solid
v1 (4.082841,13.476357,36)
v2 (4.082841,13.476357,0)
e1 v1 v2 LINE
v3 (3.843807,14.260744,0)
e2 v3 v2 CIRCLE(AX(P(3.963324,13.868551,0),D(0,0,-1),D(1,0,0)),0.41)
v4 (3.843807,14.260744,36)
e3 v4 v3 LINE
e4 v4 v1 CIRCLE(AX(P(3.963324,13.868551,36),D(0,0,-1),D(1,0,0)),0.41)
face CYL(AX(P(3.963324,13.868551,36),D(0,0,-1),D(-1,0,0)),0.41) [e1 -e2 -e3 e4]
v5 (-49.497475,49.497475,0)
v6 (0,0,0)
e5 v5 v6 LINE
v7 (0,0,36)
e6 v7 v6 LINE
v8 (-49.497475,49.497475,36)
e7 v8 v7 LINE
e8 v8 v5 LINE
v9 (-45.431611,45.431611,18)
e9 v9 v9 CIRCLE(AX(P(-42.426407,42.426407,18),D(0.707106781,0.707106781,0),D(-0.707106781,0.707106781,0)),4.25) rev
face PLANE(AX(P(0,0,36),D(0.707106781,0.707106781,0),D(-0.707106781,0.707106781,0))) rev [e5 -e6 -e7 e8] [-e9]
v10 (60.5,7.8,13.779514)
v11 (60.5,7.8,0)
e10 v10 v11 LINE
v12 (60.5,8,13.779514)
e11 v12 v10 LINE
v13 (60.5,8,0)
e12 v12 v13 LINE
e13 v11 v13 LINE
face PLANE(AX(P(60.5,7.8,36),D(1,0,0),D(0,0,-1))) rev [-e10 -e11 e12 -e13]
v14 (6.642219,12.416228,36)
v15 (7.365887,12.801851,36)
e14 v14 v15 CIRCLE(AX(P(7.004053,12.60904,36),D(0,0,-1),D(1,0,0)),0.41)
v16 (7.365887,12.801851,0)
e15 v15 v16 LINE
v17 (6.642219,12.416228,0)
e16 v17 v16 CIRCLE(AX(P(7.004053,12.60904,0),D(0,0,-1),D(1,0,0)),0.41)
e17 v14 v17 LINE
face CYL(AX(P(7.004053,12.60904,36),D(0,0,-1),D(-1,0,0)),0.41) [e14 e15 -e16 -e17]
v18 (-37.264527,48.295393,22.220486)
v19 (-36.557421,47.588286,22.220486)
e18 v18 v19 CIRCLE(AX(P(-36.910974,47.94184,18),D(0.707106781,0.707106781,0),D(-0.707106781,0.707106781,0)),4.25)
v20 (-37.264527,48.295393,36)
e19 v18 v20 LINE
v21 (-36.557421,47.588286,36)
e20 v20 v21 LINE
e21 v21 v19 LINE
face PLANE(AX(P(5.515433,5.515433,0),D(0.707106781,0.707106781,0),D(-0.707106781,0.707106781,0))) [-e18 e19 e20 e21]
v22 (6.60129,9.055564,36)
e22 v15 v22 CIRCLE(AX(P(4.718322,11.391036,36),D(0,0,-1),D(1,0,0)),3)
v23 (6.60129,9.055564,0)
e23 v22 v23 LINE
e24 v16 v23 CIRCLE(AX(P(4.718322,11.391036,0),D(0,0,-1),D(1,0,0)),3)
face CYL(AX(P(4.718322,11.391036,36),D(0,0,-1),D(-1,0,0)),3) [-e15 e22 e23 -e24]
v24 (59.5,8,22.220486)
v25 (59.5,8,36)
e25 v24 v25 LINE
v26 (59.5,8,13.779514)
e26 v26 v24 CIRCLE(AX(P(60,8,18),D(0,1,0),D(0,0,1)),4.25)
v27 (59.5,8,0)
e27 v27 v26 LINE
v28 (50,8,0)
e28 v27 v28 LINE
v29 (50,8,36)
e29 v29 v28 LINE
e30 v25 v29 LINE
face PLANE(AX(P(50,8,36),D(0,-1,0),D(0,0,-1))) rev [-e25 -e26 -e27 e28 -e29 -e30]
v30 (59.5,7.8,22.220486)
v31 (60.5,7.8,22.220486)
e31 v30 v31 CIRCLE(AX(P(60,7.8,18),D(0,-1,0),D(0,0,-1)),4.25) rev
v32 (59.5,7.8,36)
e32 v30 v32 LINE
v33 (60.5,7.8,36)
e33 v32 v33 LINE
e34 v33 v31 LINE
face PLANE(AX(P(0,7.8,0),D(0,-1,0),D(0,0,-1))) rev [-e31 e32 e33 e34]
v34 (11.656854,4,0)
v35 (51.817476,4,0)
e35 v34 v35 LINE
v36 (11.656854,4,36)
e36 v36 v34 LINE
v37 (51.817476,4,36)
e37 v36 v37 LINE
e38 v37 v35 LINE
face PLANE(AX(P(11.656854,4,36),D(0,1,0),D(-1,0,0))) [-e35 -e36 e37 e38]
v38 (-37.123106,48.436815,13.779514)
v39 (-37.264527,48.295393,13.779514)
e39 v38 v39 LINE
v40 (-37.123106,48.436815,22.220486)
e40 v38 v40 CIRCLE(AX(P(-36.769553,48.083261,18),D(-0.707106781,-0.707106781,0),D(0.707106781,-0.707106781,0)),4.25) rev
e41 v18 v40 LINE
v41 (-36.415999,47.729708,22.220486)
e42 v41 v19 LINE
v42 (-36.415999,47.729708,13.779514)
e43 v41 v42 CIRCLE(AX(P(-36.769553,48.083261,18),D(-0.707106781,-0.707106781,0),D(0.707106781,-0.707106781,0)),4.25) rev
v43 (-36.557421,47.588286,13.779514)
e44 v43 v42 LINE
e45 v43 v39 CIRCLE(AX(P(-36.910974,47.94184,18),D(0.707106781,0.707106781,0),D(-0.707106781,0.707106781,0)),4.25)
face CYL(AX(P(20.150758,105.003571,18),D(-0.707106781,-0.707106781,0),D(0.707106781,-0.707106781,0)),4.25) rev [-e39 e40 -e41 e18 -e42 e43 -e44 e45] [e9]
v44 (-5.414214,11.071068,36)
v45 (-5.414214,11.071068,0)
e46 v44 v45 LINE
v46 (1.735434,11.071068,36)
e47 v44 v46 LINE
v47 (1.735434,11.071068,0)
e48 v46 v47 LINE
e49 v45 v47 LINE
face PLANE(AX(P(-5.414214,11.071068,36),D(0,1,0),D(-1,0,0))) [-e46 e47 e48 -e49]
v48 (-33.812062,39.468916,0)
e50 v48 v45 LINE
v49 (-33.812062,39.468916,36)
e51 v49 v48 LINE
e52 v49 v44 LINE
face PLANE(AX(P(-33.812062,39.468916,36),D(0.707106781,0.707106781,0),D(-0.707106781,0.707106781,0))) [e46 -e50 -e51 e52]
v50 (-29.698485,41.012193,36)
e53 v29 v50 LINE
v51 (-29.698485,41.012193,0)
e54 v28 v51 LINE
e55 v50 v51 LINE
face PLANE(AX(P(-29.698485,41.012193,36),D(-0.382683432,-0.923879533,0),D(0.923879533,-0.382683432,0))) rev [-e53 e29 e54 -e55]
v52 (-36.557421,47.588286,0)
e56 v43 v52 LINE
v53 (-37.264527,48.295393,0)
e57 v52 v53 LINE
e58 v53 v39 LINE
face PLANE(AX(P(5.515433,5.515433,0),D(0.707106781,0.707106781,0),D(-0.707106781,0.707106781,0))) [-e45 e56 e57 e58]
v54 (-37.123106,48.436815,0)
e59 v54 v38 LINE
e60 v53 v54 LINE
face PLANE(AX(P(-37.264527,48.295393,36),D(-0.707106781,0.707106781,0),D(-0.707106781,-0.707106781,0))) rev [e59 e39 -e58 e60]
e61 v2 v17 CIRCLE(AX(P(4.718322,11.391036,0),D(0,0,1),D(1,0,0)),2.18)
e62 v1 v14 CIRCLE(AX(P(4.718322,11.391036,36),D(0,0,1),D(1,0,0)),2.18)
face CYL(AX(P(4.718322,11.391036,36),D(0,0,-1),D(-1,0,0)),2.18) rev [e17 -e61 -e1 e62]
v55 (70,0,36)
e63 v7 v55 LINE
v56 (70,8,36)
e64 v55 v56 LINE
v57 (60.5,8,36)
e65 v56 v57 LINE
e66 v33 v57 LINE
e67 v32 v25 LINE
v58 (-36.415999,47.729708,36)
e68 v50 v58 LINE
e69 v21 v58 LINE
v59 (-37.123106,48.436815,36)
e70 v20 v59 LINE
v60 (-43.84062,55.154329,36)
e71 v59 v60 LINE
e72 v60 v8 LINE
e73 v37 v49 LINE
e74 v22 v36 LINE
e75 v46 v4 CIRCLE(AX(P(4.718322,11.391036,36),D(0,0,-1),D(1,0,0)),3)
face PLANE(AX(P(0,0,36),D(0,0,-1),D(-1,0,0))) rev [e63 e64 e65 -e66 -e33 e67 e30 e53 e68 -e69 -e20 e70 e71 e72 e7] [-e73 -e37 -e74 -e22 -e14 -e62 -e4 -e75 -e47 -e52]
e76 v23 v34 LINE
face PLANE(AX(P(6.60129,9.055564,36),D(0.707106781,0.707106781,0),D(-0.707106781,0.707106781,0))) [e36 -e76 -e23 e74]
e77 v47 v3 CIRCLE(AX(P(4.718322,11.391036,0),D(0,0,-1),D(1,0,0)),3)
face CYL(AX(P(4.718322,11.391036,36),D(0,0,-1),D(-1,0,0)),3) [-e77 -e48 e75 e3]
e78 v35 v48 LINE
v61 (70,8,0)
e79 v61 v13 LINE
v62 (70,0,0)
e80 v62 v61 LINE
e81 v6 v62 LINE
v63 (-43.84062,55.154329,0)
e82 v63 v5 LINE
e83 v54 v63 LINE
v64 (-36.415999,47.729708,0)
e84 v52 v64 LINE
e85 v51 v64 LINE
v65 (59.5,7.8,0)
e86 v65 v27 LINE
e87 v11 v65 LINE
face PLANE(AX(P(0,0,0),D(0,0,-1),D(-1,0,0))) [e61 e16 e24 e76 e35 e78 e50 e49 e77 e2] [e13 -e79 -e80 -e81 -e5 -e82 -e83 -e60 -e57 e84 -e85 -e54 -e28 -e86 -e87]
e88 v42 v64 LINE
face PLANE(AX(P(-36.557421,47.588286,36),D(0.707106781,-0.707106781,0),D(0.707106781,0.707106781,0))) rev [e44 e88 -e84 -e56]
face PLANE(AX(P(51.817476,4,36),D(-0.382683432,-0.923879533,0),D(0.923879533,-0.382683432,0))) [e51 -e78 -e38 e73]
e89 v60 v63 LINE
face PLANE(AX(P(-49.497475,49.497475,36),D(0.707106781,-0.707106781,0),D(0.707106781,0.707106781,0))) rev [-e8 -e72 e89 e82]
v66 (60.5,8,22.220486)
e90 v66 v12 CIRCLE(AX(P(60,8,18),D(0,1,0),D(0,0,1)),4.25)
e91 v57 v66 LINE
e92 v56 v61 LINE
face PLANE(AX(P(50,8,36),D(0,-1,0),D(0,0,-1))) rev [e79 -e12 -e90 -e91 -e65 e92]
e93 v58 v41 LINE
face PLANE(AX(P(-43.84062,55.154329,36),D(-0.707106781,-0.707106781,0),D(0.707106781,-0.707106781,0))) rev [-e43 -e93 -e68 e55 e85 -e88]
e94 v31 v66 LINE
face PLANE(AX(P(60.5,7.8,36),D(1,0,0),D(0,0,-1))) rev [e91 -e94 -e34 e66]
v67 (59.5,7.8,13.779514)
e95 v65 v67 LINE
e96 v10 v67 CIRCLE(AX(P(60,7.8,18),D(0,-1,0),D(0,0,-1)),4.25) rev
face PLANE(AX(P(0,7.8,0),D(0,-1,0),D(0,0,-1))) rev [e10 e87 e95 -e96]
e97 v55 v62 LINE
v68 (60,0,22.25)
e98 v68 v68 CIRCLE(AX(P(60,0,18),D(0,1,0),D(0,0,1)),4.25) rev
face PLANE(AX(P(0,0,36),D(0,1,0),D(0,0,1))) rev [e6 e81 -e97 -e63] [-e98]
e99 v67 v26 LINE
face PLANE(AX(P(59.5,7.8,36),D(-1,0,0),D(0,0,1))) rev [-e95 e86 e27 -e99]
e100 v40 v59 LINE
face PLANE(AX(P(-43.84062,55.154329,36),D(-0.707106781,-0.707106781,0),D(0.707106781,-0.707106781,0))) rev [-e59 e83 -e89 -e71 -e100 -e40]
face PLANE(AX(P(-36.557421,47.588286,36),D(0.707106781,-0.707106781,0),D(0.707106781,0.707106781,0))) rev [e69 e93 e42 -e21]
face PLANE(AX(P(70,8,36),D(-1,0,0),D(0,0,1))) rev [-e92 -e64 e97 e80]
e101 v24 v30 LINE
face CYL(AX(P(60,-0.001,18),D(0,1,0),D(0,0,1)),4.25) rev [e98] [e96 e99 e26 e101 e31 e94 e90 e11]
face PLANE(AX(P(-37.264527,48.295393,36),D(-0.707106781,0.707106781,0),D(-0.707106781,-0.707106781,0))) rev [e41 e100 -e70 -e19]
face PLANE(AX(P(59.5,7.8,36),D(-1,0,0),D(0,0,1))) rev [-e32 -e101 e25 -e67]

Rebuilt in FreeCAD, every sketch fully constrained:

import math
import FreeCAD as App
import Part
import Sketcher

V = App.Vector
Q = App.Units.Quantity

doc = App.newDocument("Part")
body = doc.addObject("PartDesign::Body", "Body")

# Sketch on XY plane
sketch1 = body.newObject("Sketcher::SketchObject", "Sketch")
sketch1.AttachmentSupport = (doc.getObject("XY_Plane"), [""])
sketch1.MapMode = "FlatFace"
sketch1.addGeometry([
    Part.LineSegment(V(0, 0, 0), V(70, 0, 0)),  # 0
    Part.LineSegment(V(70, 0, 0), V(70, 8, 0)),  # 1
    Part.LineSegment(V(70, 8, 0), V(50, 8, 0)),  # 2
    Part.LineSegment(V(50, 8, 0), V(-29.7, 41.01, 0)),  # 3
    Part.LineSegment(V(-29.7, 41.01, 0), V(-43.84, 55.15, 0)),  # 4
    Part.LineSegment(V(-43.84, 55.15, 0), V(-49.5, 49.5, 0)),  # 5
    Part.LineSegment(V(-49.5, 49.5, 0), V(0, 0, 0)),  # 6
    Part.LineSegment(V(-5.41, 11.07, 0), V(-33.81, 39.47, 0)),  # 7
    Part.LineSegment(V(-33.81, 39.47, 0), V(51.82, 4, 0)),  # 8
    Part.LineSegment(V(51.82, 4, 0), V(11.66, 4, 0)),  # 9
    Part.LineSegment(V(11.66, 4, 0), V(6.6, 9.06, 0)),  # 10
    Part.ArcOfCircle(Part.Circle(V(4.72, 11.39, 0), V(0, 0, 1), 3), math.radians(-51), math.radians(28)),  # 11
    Part.ArcOfCircle(Part.Circle(V(7, 12.61, 0), V(0, 0, 1), 0.41), math.radians(28), math.radians(208)),  # 12
    Part.ArcOfCircle(Part.Circle(V(4.72, 11.39, 0), V(0, 0, 1), 2.18), math.radians(107), math.radians(388)),  # 13
    Part.ArcOfCircle(Part.Circle(V(3.96, 13.87, 0), V(0, 0, 1), 0.41), math.radians(-73), math.radians(107)),  # 14
    Part.ArcOfCircle(Part.Circle(V(4.72, 11.39, 0), V(0, 0, 1), 3), math.radians(107), math.radians(186)),  # 15
    Part.LineSegment(V(1.74, 11.07, 0), V(-5.41, 11.07, 0)),  # 16
], False)
sketch1.addConstraint([
    Sketcher.Constraint("Coincident", 0, 2, 1, 1),
    Sketcher.Constraint("Coincident", 1, 2, 2, 1),
    Sketcher.Constraint("Coincident", 2, 2, 3, 1),
    Sketcher.Constraint("Coincident", 3, 2, 4, 1),
    Sketcher.Constraint("Coincident", 4, 2, 5, 1),
    Sketcher.Constraint("Coincident", 5, 2, 6, 1),
    Sketcher.Constraint("Coincident", 6, 2, 0, 1),
    Sketcher.Constraint("Coincident", 7, 2, 8, 1),
    Sketcher.Constraint("Coincident", 8, 2, 9, 1),
    Sketcher.Constraint("Coincident", 9, 2, 10, 1),
    Sketcher.Constraint("Coincident", 10, 2, 11, 1),
    Sketcher.Constraint("Tangent", 11, 2, 12, 1),
    Sketcher.Constraint("Tangent", 12, 2, 13, 2),
    Sketcher.Constraint("Tangent", 13, 1, 14, 1),
    Sketcher.Constraint("Tangent", 14, 2, 15, 1),
    Sketcher.Constraint("Coincident", 15, 2, 16, 1),
    Sketcher.Constraint("Coincident", 16, 2, 7, 1),
    Sketcher.Constraint("Horizontal", 0),
    Sketcher.Constraint("Vertical", 1),
    Sketcher.Constraint("Horizontal", 2),
    Sketcher.Constraint("Horizontal", 9),
    Sketcher.Constraint("Horizontal", 16),
    Sketcher.Constraint("Coincident", 6, 2, -1, 1),
    Sketcher.Constraint("Coincident", 13, 3, 11, 3),
    Sketcher.Constraint("Coincident", 15, 3, 11, 3),
    Sketcher.Constraint("Equal", 12, 14),
    Sketcher.Constraint("Perpendicular", 4, 5),
    Sketcher.Constraint("Perpendicular", 5, 6),
    Sketcher.Constraint("Parallel", 6, 7),
    Sketcher.Constraint("Parallel", 3, 8),
    Sketcher.Constraint("Parallel", 7, 10),
    Sketcher.Constraint("Radius", 11, Q("3 mm")),
    Sketcher.Constraint("DistanceX", 0, 1, 0, 2, Q("70 mm")),
    Sketcher.Constraint("DistanceX", 2, 2, 2, 1, Q("20 mm")),
    Sketcher.Constraint("DistanceY", 1, 1, 1, 2, Q("8 mm")),
    Sketcher.Constraint("Angle", 4, Q("135 deg")),
    Sketcher.Constraint("Radius", 12, Q("0.41 mm")),
    Sketcher.Constraint("Distance", 4, Q("20 mm")),
    Sketcher.Constraint("Distance", 5, Q("8 mm")),
    Sketcher.Constraint("Distance", 6, Q("70 mm")),
    Sketcher.Constraint("DistanceY", -1, 1, 8, 2, Q("4 mm")),
    Sketcher.Constraint("DistanceX", 5, 2, 14, 3, Q("53.460799 mm")),
    Sketcher.Constraint("DistanceX", 12, 3, 9, 2, Q("4.652801 mm")),
    Sketcher.Constraint("DistanceY", 11, 2, 14, 3, Q("1.0667 mm")),
    Sketcher.Constraint("DistanceX", 9, 2, 9, 1, Q("40.160622 mm")),
    Sketcher.Constraint("DistanceX", 16, 2, 16, 1, Q("7.149647 mm")),
    Sketcher.Constraint("DistanceX", -1, 1, 11, 3, Q("4.718322 mm")),
    Sketcher.Constraint("DistanceY", -1, 1, 12, 3, Q("12.60904 mm")),
    Sketcher.Constraint("DistanceX", 7, 2, -1, 1, Q("33.812062 mm")),
])
pad1 = body.newObject("PartDesign::Pad", "Pad")
pad1.Profile = sketch1
pad1.Length = 36

# Sketch on XZ plane
sketch2 = body.newObject("Sketcher::SketchObject", "Sketch001")
sketch2.AttachmentSupport = (doc.getObject("XZ_Plane"), [""])
sketch2.MapMode = "FlatFace"
sketch2.AttachmentOffset = App.Placement(V(0, 0, -8), App.Rotation())
sketch2.addGeometry(Part.Circle(V(60, 18, 0), V(0, 0, 1), 4.2), False)
sketch2.addConstraint([
    Sketcher.Constraint("Diameter", 0, Q("8.5 mm")),
    Sketcher.Constraint("DistanceX", -1, 1, 0, 3, Q("60 mm")),
    Sketcher.Constraint("DistanceY", -1, 1, 0, 3, Q("18 mm")),
])
pocket1 = body.newObject("PartDesign::Pocket", "Pocket")
pocket1.Profile = sketch2
pocket1.Type = "UpToFirst"
pocket1.Reversed = True

# Sketch on an angled plane
sketch3 = body.newObject("Sketcher::SketchObject", "Sketch002")
sketch3.Placement = App.Placement(V(5.656854, 5.656854, 0), App.Rotation(V(0, 0, -1), V(-0.707106781, 0.707106781, 0), V(0.707106781, 0.707106781, 0), "ZXY"))
sketch3.addGeometry(Part.Circle(V(-18, 60, 0), V(0, 0, 1), 4.2), False)
sketch3.addConstraint([
    Sketcher.Constraint("Diameter", 0, Q("8.5 mm")),
    Sketcher.Constraint("DistanceX", 0, 3, -1, 1, Q("18 mm")),
    Sketcher.Constraint("DistanceY", -1, 1, 0, 3, Q("60 mm")),
])
pocket2 = body.newObject("PartDesign::Pocket", "Pocket001")
pocket2.Profile = sketch3
pocket2.Type = "UpToFirst"

# Sketch on an angled plane
sketch4 = body.newObject("Sketcher::SketchObject", "Sketch003")
sketch4.Placement = App.Placement(V(5.656854, 5.656854, 0), App.Rotation(V(0, 0, -1), V(-0.707106781, 0.707106781, 0), V(0.707106781, 0.707106781, 0), "ZXY"))
sketch4.addGeometry(Part.Circle(V(-18, 60, 0), V(0, 0, 1), 4.2), False)
sketch4.addConstraint([
    Sketcher.Constraint("Diameter", 0, Q("8.5 mm")),
    Sketcher.Constraint("DistanceX", 0, 3, -1, 1, Q("18 mm")),
    Sketcher.Constraint("DistanceY", -1, 1, 0, 3, Q("60 mm")),
])
pocket3 = body.newObject("PartDesign::Pocket", "Pocket002")
pocket3.Profile = sketch4
pocket3.Length = 89.803381
pocket3.Reversed = True

# Sketch on XZ plane
sketch5 = body.newObject("Sketcher::SketchObject", "Sketch004")
sketch5.AttachmentSupport = (doc.getObject("XZ_Plane"), [""])
sketch5.MapMode = "FlatFace"
sketch5.AttachmentOffset = App.Placement(V(0, 0, -8), App.Rotation())
sketch5.addGeometry([
    Part.LineSegment(V(59.5, 0, 0), V(59.5, 36, 0)),
    Part.LineSegment(V(59.5, 36, 0), V(60.5, 36, 0)),
    Part.LineSegment(V(60.5, 36, 0), V(60.5, 0, 0)),
    Part.LineSegment(V(60.5, 0, 0), V(59.5, 0, 0)),
], False)
sketch5.addConstraint([
    Sketcher.Constraint("Coincident", 0, 2, 1, 1),
    Sketcher.Constraint("Coincident", 1, 2, 2, 1),
    Sketcher.Constraint("Coincident", 2, 2, 3, 1),
    Sketcher.Constraint("Coincident", 3, 2, 0, 1),
    Sketcher.Constraint("Vertical", 0),
    Sketcher.Constraint("Horizontal", 1),
    Sketcher.Constraint("Vertical", 2),
    Sketcher.Constraint("Horizontal", 3),
    Sketcher.Constraint("PointOnObject", 2, 2, -1),
    Sketcher.Constraint("DistanceX", 1, 1, 1, 2, Q("1 mm")),
    Sketcher.Constraint("DistanceY", 0, 1, 0, 2, Q("36 mm")),
    Sketcher.Constraint("DistanceX", -1, 1, 0, 2, Q("59.5 mm")),
])
pocket4 = body.newObject("PartDesign::Pocket", "Pocket003")
pocket4.Profile = sketch5
pocket4.Length = 0.2
pocket4.Reversed = True

# Sketch on an angled plane
sketch6 = body.newObject("Sketcher::SketchObject", "Sketch005")
sketch6.Placement = App.Placement(V(5.656854, 5.656854, 0), App.Rotation(V(0, 0, -1), V(-0.707106781, 0.707106781, 0), V(0.707106781, 0.707106781, 0), "ZXY"))
sketch6.addGeometry([
    Part.LineSegment(V(-36, 60.5, 0), V(-36, 59.5, 0)),
    Part.LineSegment(V(-36, 59.5, 0), V(0, 59.5, 0)),
    Part.LineSegment(V(0, 59.5, 0), V(0, 60.5, 0)),
    Part.LineSegment(V(0, 60.5, 0), V(-36, 60.5, 0)),
], False)
sketch6.addConstraint([
    Sketcher.Constraint("Coincident", 0, 2, 1, 1),
    Sketcher.Constraint("Coincident", 1, 2, 2, 1),
    Sketcher.Constraint("Coincident", 2, 2, 3, 1),
    Sketcher.Constraint("Coincident", 3, 2, 0, 1),
    Sketcher.Constraint("Vertical", 0),
    Sketcher.Constraint("Horizontal", 1),
    Sketcher.Constraint("Vertical", 2),
    Sketcher.Constraint("Horizontal", 3),
    Sketcher.Constraint("PointOnObject", 1, 2, -2),
    Sketcher.Constraint("DistanceX", 1, 1, 1, 2, Q("36 mm")),
    Sketcher.Constraint("DistanceY", 0, 2, 0, 1, Q("1 mm")),
    Sketcher.Constraint("DistanceY", -1, 1, 0, 2, Q("59.5 mm")),
])
pocket5 = body.newObject("PartDesign::Pocket", "Pocket004")
pocket5.Profile = sketch6
pocket5.Length = 0.2

doc.recompute()
